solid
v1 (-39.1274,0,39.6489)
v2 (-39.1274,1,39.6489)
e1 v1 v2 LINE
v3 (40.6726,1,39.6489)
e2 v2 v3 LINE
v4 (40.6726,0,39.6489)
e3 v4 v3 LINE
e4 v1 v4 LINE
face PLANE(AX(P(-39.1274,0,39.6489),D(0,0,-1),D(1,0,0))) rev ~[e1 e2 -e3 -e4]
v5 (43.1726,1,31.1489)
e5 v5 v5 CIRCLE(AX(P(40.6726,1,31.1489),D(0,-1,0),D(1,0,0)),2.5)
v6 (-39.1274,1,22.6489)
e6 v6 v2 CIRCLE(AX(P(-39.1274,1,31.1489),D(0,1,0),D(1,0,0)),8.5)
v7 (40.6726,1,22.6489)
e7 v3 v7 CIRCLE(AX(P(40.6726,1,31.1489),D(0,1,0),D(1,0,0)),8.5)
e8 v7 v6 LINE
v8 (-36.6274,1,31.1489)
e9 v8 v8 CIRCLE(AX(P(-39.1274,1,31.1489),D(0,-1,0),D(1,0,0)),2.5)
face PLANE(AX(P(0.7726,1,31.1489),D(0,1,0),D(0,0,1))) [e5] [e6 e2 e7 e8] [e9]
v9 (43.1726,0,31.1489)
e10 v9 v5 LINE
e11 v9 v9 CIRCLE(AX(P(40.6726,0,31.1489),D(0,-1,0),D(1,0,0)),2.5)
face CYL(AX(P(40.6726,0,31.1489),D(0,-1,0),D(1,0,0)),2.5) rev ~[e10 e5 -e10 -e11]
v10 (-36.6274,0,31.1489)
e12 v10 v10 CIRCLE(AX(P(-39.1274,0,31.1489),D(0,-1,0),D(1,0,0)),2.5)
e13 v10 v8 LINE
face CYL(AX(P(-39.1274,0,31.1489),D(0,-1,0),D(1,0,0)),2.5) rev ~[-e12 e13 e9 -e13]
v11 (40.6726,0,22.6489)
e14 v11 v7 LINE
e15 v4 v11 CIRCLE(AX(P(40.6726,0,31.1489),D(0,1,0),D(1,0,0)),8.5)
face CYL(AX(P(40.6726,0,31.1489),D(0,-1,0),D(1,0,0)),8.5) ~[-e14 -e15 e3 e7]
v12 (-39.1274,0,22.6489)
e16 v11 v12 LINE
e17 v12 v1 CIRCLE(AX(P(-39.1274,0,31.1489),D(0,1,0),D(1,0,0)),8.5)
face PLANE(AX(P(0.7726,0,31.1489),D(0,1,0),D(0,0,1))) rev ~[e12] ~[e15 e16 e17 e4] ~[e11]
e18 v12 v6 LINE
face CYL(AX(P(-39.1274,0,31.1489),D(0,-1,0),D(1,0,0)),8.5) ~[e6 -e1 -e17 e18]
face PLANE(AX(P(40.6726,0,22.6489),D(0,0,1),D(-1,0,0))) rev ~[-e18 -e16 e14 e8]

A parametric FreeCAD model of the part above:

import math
import FreeCAD as App
import Part
import Sketcher

V = App.Vector
Q = App.Units.Quantity

doc = App.newDocument("Part")
body = doc.addObject("PartDesign::Body", "Body")

sketch1 = body.newObject("Sketcher::SketchObject", "Sketch")
sketch1.AttachmentSupport = (doc.getObject("XZ_Plane"), [""])
sketch1.MapMode = "FlatFace"
sketch1.addGeometry(Part.LineSegment(V(-39.1, 22.6, 0), V(40.7, 22.6, 0)), False)
sketch1.addGeometry(Part.ArcOfCircle(Part.Circle(V(40.7, 31.1, 0), V(0, 0, 1), 8.5), math.radians(-90), math.radians(90)), False)
sketch1.addGeometry(Part.LineSegment(V(40.7, 39.6, 0), V(-39.1, 39.6, 0)), False)
sketch1.addGeometry(Part.ArcOfCircle(Part.Circle(V(-39.1, 31.1, 0), V(0, 0, 1), 8.5), math.radians(90), math.radians(270)), False)
sketch1.addGeometry(Part.Circle(V(-39.1, 31.1, 0), V(0, 0, 1), 2.5), False)
sketch1.addGeometry(Part.Circle(V(40.7, 31.1, 0), V(0, 0, 1), 2.5), False)
sketch1.addConstraint(Sketcher.Constraint("Tangent", 0, 2, 1, 1))
sketch1.addConstraint(Sketcher.Constraint("Tangent", 1, 2, 2, 1))
sketch1.addConstraint(Sketcher.Constraint("Tangent", 2, 2, 3, 1))
sketch1.addConstraint(Sketcher.Constraint("Tangent", 3, 2, 0, 1))
sketch1.addConstraint(Sketcher.Constraint("Horizontal", 0))
sketch1.addConstraint(Sketcher.Constraint("Horizontal", 2))
sketch1.addConstraint(Sketcher.Constraint("Coincident", 4, 3, 3, 3))
sketch1.addConstraint(Sketcher.Constraint("Coincident", 5, 3, 1, 3))
sketch1.addConstraint(Sketcher.Constraint("Equal", 4, 5))
sketch1.addConstraint(Sketcher.Constraint("Diameter", 4, Q("5 mm")))
sketch1.addConstraint(Sketcher.Constraint("Radius", 1, Q("8.5 mm")))
sketch1.addConstraint(Sketcher.Constraint("DistanceX", 0, 1, 0, 2, Q("79.8 mm")))
sketch1.addConstraint(Sketcher.Constraint("DistanceY", -1, 1, 1, 3, Q("31.149 mm")))
sketch1.addConstraint(Sketcher.Constraint("DistanceX", -1, 1, 1, 3, Q("40.6726 mm")))
pad1 = body.newObject("PartDesign::Pad", "Pad")
pad1.Profile = sketch1
pad1.Length = 1
pad1.Reversed = True

doc.recompute()
